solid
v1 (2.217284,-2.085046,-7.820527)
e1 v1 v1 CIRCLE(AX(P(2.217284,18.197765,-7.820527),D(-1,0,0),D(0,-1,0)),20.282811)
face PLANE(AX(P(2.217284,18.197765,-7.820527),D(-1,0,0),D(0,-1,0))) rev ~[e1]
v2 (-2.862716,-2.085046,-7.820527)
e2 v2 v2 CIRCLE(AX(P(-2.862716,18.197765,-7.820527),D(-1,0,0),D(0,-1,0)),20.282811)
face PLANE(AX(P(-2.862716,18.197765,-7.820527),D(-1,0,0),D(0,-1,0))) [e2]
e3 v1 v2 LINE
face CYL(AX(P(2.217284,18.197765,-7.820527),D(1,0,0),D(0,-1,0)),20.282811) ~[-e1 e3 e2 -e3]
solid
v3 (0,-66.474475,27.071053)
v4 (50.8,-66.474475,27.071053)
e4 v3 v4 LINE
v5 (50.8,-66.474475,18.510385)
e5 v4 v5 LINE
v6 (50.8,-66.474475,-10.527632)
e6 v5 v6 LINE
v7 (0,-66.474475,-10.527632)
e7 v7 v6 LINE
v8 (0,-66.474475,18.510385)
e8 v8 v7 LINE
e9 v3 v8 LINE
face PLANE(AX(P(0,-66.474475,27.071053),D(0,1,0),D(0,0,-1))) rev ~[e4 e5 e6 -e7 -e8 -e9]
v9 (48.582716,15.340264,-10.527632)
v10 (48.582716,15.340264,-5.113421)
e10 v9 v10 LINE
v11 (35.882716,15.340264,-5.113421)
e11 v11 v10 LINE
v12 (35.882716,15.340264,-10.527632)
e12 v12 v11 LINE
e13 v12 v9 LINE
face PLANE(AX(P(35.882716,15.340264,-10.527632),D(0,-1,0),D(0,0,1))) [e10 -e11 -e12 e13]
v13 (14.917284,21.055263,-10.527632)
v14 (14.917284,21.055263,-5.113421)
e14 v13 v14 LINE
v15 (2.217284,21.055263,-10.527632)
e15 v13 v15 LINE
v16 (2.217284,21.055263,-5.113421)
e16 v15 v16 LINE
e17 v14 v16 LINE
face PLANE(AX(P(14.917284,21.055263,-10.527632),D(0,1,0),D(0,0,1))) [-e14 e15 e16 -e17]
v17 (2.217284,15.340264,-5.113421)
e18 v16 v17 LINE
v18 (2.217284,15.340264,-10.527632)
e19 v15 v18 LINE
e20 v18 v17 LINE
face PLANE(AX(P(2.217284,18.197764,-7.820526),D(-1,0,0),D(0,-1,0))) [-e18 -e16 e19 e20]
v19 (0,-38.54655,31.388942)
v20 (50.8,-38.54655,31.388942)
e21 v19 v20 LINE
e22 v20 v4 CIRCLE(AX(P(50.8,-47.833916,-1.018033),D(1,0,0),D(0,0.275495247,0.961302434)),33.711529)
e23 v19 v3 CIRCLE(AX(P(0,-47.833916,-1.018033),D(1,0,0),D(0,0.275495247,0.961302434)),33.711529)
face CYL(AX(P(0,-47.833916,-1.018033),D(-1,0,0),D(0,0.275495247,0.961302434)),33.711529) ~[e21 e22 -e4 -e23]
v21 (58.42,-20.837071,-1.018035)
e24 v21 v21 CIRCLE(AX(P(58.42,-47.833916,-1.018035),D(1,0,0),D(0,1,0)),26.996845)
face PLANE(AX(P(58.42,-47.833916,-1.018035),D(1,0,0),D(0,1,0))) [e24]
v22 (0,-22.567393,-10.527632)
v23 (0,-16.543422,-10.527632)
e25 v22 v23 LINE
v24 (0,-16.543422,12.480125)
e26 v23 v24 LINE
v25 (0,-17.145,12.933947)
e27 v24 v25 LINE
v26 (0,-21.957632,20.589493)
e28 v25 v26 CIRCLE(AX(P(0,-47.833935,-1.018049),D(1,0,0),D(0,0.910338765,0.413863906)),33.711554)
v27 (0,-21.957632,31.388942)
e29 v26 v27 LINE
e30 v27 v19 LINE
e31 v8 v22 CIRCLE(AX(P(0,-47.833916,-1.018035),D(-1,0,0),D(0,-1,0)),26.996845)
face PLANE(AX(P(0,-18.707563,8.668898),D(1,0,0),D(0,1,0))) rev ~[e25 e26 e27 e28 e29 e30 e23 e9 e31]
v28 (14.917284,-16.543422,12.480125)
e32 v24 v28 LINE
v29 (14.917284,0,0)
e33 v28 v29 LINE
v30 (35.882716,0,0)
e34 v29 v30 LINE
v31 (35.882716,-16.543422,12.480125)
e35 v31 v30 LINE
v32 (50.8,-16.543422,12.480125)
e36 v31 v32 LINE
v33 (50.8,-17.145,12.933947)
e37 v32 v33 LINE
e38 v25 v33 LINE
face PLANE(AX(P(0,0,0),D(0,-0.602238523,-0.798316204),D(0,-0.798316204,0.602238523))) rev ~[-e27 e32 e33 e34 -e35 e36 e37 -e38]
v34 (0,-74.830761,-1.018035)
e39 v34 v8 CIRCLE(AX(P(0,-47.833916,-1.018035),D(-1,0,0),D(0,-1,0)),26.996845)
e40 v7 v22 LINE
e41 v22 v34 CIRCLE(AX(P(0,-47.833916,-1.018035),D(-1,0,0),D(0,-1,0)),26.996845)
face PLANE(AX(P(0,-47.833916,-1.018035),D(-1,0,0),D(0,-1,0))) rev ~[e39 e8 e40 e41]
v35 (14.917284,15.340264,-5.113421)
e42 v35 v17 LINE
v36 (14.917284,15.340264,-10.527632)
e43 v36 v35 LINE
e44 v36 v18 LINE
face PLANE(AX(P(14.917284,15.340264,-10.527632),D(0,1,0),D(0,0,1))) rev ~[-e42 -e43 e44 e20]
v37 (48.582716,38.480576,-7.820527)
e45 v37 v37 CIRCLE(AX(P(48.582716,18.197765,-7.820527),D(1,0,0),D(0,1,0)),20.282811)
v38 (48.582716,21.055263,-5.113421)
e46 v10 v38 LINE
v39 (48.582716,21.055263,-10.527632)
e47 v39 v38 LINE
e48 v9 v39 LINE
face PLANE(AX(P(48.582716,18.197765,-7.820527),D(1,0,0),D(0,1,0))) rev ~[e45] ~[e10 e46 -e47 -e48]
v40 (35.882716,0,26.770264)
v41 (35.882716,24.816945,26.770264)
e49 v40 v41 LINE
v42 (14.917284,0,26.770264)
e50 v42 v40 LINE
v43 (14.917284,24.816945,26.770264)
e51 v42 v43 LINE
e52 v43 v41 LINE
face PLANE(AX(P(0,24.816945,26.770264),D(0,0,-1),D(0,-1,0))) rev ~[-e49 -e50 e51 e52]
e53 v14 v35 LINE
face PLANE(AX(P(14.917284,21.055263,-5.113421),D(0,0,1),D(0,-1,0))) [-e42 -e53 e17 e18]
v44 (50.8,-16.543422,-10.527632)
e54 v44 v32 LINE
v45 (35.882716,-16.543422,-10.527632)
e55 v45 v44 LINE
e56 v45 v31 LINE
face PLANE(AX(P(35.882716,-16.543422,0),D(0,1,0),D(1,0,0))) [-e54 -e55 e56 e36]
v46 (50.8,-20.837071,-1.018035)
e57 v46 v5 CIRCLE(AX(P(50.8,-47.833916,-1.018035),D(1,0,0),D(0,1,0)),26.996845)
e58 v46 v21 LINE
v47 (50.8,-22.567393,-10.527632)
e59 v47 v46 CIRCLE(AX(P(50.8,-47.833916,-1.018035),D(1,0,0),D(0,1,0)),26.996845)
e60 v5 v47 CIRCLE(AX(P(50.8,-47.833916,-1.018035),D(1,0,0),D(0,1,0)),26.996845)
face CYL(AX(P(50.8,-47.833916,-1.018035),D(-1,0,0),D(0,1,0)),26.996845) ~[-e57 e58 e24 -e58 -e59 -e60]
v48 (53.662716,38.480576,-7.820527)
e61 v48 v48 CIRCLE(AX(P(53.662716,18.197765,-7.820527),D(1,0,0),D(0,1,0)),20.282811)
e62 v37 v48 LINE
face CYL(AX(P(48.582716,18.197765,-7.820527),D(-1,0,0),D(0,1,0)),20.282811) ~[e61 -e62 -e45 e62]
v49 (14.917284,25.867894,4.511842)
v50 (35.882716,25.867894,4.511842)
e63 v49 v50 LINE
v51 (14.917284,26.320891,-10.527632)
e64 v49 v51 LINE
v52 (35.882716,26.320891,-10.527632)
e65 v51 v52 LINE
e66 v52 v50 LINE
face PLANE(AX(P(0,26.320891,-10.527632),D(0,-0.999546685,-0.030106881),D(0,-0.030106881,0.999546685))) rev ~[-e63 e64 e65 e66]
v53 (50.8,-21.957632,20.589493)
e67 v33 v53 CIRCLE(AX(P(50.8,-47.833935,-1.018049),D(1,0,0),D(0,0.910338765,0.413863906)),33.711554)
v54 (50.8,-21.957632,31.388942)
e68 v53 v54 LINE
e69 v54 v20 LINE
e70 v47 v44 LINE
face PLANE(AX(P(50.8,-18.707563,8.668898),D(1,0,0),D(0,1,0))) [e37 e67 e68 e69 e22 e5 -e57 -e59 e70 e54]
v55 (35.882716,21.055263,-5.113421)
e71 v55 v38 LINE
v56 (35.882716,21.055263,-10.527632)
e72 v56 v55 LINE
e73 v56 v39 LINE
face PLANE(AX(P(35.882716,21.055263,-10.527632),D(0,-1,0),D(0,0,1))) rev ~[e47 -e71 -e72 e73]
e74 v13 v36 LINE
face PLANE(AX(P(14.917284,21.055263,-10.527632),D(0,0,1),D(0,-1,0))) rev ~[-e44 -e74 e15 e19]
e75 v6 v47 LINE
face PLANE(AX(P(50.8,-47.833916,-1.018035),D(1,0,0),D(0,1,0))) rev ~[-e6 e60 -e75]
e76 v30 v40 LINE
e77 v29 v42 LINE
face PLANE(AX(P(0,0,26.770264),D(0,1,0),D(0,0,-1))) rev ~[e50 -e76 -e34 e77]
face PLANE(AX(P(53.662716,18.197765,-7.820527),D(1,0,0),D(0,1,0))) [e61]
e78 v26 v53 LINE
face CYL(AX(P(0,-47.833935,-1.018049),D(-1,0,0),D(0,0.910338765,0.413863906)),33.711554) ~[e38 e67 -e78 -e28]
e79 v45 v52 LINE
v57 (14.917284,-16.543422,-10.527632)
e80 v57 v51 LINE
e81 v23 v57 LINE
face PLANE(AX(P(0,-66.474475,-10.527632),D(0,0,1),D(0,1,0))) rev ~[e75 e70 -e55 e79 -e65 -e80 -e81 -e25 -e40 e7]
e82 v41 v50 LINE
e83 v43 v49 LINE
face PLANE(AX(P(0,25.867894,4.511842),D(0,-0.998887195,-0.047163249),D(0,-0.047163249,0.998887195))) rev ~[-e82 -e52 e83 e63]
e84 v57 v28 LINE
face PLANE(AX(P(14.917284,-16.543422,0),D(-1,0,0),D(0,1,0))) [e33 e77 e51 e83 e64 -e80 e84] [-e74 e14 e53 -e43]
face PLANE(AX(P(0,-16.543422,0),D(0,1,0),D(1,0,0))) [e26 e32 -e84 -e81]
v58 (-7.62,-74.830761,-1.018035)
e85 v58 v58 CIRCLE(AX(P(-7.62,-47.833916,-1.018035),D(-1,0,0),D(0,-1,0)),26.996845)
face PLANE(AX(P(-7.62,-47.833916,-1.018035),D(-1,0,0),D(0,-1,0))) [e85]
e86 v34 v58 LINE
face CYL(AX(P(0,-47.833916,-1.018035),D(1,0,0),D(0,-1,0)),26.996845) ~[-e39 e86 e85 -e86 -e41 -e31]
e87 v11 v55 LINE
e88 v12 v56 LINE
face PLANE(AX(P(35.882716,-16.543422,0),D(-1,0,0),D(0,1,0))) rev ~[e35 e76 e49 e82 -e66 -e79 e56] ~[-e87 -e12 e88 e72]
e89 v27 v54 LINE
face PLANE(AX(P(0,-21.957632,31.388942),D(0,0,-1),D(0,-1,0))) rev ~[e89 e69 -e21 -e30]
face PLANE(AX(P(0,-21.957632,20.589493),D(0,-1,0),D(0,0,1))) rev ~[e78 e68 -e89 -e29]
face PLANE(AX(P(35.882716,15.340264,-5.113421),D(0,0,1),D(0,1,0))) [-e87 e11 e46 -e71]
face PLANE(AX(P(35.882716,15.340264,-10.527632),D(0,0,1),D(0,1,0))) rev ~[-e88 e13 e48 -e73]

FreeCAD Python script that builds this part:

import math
import FreeCAD as App
import Part
import Sketcher
Q = App.Units.Quantity

doc = App.newDocument("Part")
body = doc.addObject("PartDesign::Body", "Body")

# Sketch on YZ plane
sketch1 = doc.addObject("Sketcher::SketchObject", "Sketch")
body.addObject(sketch1)
sketch1.AttachmentSupport = (doc.YZ_Plane, [""])
sketch1.MapMode = "FlatFace"
sketch1.addGeometry([
    Part.LineSegment(App.Vector(0, 0, 0), App.Vector(-17.145, 12.933947, 0)),  # 0
    Part.ArcOfCircle(Part.Circle(App.Vector(-47.833935, -1.018049, 0), App.Vector(0, 0, 1), 33.711554), math.radians(24.447792), math.radians(39.862963)),  # 1
    Part.LineSegment(App.Vector(-21.957632, 20.589493, 0), App.Vector(-21.957632, 31.388942, 0)),  # 2
    Part.LineSegment(App.Vector(-21.957632, 31.388942, 0), App.Vector(-38.54655, 31.388942, 0)),  # 3
    Part.ArcOfCircle(Part.Circle(App.Vector(-47.833916, -1.018033, 0), App.Vector(0, 0, 1), 33.711529), math.radians(74.00847), math.radians(123.569161)),  # 4
    Part.LineSegment(App.Vector(-66.474475, 27.071053, 0), App.Vector(-66.474475, -10.527632, 0)),  # 5
    Part.LineSegment(App.Vector(-66.474475, -10.527632, 0), App.Vector(26.320891, -10.527632, 0)),  # 6
    Part.LineSegment(App.Vector(26.320891, -10.527632, 0), App.Vector(25.867894, 4.511842, 0)),  # 7
    Part.LineSegment(App.Vector(25.867894, 4.511842, 0), App.Vector(24.816945, 26.770264, 0)),  # 8
    Part.LineSegment(App.Vector(24.816945, 26.770264, 0), App.Vector(0, 26.770264, 0)),  # 9
    Part.LineSegment(App.Vector(0, 26.770264, 0), App.Vector(0, 0, 0)),  # 10
], False)
sketch1.addConstraint([
    Sketcher.Constraint("Coincident", 0, 2, 1, 1),
    Sketcher.Constraint("Coincident", 1, 2, 2, 1),
    Sketcher.Constraint("Coincident", 2, 2, 3, 1),
    Sketcher.Constraint("Coincident", 3, 2, 4, 1),
    Sketcher.Constraint("Coincident", 4, 2, 5, 1),
    Sketcher.Constraint("Coincident", 5, 2, 6, 1),
    Sketcher.Constraint("Coincident", 6, 2, 7, 1),
    Sketcher.Constraint("Coincident", 7, 2, 8, 1),
    Sketcher.Constraint("Coincident", 8, 2, 9, 1),
    Sketcher.Constraint("Coincident", 9, 2, 10, 1),
    Sketcher.Constraint("Coincident", 10, 2, 0, 1),
    Sketcher.Constraint("Vertical", 2),
    Sketcher.Constraint("Horizontal", 3),
    Sketcher.Constraint("Vertical", 5),
    Sketcher.Constraint("Horizontal", 6),
    Sketcher.Constraint("Horizontal", 9),
    Sketcher.Constraint("Vertical", 10),
    Sketcher.Constraint("Coincident", 10, 2, -1, 1),
    Sketcher.Constraint("DistanceX", 0, 2, -1, 1, Q("0.675 in")),
    Sketcher.Constraint("Radius", 4, Q("33.711529 mm")),
    Sketcher.Constraint("Radius", 1, Q("33.711554 mm")),
    Sketcher.Constraint("DistanceX", 3, 2, 3, 1, Q("16.588918 mm")),
    Sketcher.Constraint("DistanceY", 2, 1, 2, 2, Q("10.799449 mm")),
    Sketcher.Constraint("DistanceY", 1, 3, 4, 2, Q("28.089102 mm")),
    Sketcher.Constraint("DistanceY", 5, 2, 4, 3, Q("9.509599 mm")),
    Sketcher.Constraint("DistanceY", 7, 2, 2, 2, Q("26.8771 mm")),
    Sketcher.Constraint("Distance", 8, Q("22.283219 mm")),
    Sketcher.Constraint("DistanceX", 6, 1, 6, 2, Q("92.795366 mm")),
    Sketcher.Constraint("DistanceX", 9, 2, 9, 1, Q("24.816945 mm")),
    Sketcher.Constraint("DistanceY", 5, 2, 5, 1, Q("37.598685 mm")),
    Sketcher.Constraint("DistanceY", 10, 2, 10, 1, Q("26.770264 mm")),
    Sketcher.Constraint("DistanceY", 1, 3, -1, 1, Q("1.018049 mm")),
    Sketcher.Constraint("DistanceX", 1, 2, -1, 1, Q("21.957632 mm")),
    Sketcher.Constraint("DistanceY", -1, 1, 2, 2, Q("31.388942 mm")),
])
pad1 = doc.addObject("PartDesign::Pad", "Pad")
body.addObject(pad1)
pad1.Profile = sketch1
pad1.Length = Q("2 in")

# Sketch on XY plane
sketch2 = doc.addObject("Sketcher::SketchObject", "Sketch001")
body.addObject(sketch2)
sketch2.AttachmentSupport = (doc.XY_Plane, [""])
sketch2.MapMode = "FlatFace"
sketch2.addGeometry([
    Part.LineSegment(App.Vector(0, 37.297894, 0), App.Vector(0, -16.543422, 0)),  # 0
    Part.LineSegment(App.Vector(0, -16.543422, 0), App.Vector(14.917284, -16.543422, 0)),  # 1
    Part.LineSegment(App.Vector(14.917284, -16.543422, 0), App.Vector(14.917284, 37.297894, 0)),  # 2
    Part.LineSegment(App.Vector(14.917284, 37.297894, 0), App.Vector(0, 37.297894, 0)),  # 3
    Part.LineSegment(App.Vector(35.882716, 37.297894, 0), App.Vector(35.882716, -16.543422, 0)),  # 4
    Part.LineSegment(App.Vector(35.882716, -16.543422, 0), App.Vector(50.8, -16.543422, 0)),  # 5
    Part.LineSegment(App.Vector(50.8, -16.543422, 0), App.Vector(50.8, 37.297894, 0)),  # 6
    Part.LineSegment(App.Vector(50.8, 37.297894, 0), App.Vector(35.882716, 37.297894, 0)),  # 7
], False)
sketch2.addConstraint([
    Sketcher.Constraint("Coincident", 0, 2, 1, 1),
    Sketcher.Constraint("Coincident", 1, 2, 2, 1),
    Sketcher.Constraint("Coincident", 2, 2, 3, 1),
    Sketcher.Constraint("Coincident", 3, 2, 0, 1),
    Sketcher.Constraint("Coincident", 4, 2, 5, 1),
    Sketcher.Constraint("Coincident", 5, 2, 6, 1),
    Sketcher.Constraint("Coincident", 6, 2, 7, 1),
    Sketcher.Constraint("Coincident", 7, 2, 4, 1),
    Sketcher.Constraint("Vertical", 0),
    Sketcher.Constraint("Horizontal", 1),
    Sketcher.Constraint("Vertical", 2),
    Sketcher.Constraint("Horizontal", 3),
    Sketcher.Constraint("Vertical", 4),
    Sketcher.Constraint("Horizontal", 5),
    Sketcher.Constraint("Vertical", 6),
    Sketcher.Constraint("Horizontal", 7),
    Sketcher.Constraint("PointOnObject", 0, 2, -2),
    Sketcher.Constraint("Horizontal", 1, 2, 4, 2),
    Sketcher.Constraint("Horizontal", 3, 2, 6, 2),
    Sketcher.Constraint("Equal", 3, 5),
    Sketcher.Constraint("DistanceX", -1, 1, 5, 2, Q("2 in")),
    Sketcher.Constraint("DistanceX", 1, 1, 1, 2, Q("14.917284 mm")),
    Sketcher.Constraint("DistanceY", 0, 2, 0, 1, Q("53.841317 mm")),
    Sketcher.Constraint("DistanceY", 0, 2, -1, 1, Q("16.543422 mm")),
])
pocket1 = doc.addObject("PartDesign::Pocket", "Pocket")
body.addObject(pocket1)
pocket1.Profile = sketch2
pocket1.Type = "ThroughAll"
pocket1.Reversed = True

# Sketch on XY plane
sketch3 = doc.addObject("Sketcher::SketchObject", "Sketch002")
body.addObject(sketch3)
sketch3.AttachmentSupport = (doc.XY_Plane, [""])
sketch3.MapMode = "FlatFace"
sketch3.addGeometry([
    Part.LineSegment(App.Vector(0, 37.297894, 0), App.Vector(0, -16.543422, 0)),  # 0
    Part.LineSegment(App.Vector(0, -16.543422, 0), App.Vector(14.917284, -16.543422, 0)),  # 1
    Part.LineSegment(App.Vector(14.917284, -16.543422, 0), App.Vector(14.917284, 37.297894, 0)),  # 2
    Part.LineSegment(App.Vector(14.917284, 37.297894, 0), App.Vector(0, 37.297894, 0)),  # 3
    Part.LineSegment(App.Vector(35.882716, 37.297894, 0), App.Vector(35.882716, -16.543422, 0)),  # 4
    Part.LineSegment(App.Vector(35.882716, -16.543422, 0), App.Vector(50.8, -16.543422, 0)),  # 5
    Part.LineSegment(App.Vector(50.8, -16.543422, 0), App.Vector(50.8, 37.297894, 0)),  # 6
    Part.LineSegment(App.Vector(50.8, 37.297894, 0), App.Vector(35.882716, 37.297894, 0)),  # 7
], False)
sketch3.addConstraint([
    Sketcher.Constraint("Coincident", 0, 2, 1, 1),
    Sketcher.Constraint("Coincident", 1, 2, 2, 1),
    Sketcher.Constraint("Coincident", 2, 2, 3, 1),
    Sketcher.Constraint("Coincident", 3, 2, 0, 1),
    Sketcher.Constraint("Coincident", 4, 2, 5, 1),
    Sketcher.Constraint("Coincident", 5, 2, 6, 1),
    Sketcher.Constraint("Coincident", 6, 2, 7, 1),
    Sketcher.Constraint("Coincident", 7, 2, 4, 1),
    Sketcher.Constraint("Vertical", 0),
    Sketcher.Constraint("Horizontal", 1),
    Sketcher.Constraint("Vertical", 2),
    Sketcher.Constraint("Horizontal", 3),
    Sketcher.Constraint("Vertical", 4),
    Sketcher.Constraint("Horizontal", 5),
    Sketcher.Constraint("Vertical", 6),
    Sketcher.Constraint("Horizontal", 7),
    Sketcher.Constraint("PointOnObject", 0, 2, -2),
    Sketcher.Constraint("Horizontal", 1, 2, 4, 2),
    Sketcher.Constraint("Horizontal", 3, 2, 6, 2),
    Sketcher.Constraint("Equal", 3, 5),
    Sketcher.Constraint("DistanceX", -1, 1, 5, 2, Q("2 in")),
    Sketcher.Constraint("DistanceX", 1, 1, 1, 2, Q("14.917284 mm")),
    Sketcher.Constraint("DistanceY", 0, 2, 0, 1, Q("53.841317 mm")),
    Sketcher.Constraint("DistanceY", 0, 2, -1, 1, Q("16.543422 mm")),
])
pocket2 = doc.addObject("PartDesign::Pocket", "Pocket001")
body.addObject(pocket2)
pocket2.Profile = sketch3
pocket2.Type = "ThroughAll"

# Sketch on YZ plane
sketch4 = doc.addObject("Sketcher::SketchObject", "Sketch003")
body.addObject(sketch4)
sketch4.AttachmentSupport = (doc.YZ_Plane, [""])
sketch4.MapMode = "FlatFace"
sketch4.AttachmentOffset = App.Placement(App.Vector(0, 0, 2 * 25.4), App.Rotation())
sketch4.addGeometry(Part.Circle(App.Vector(-47.833916, -1.018035, 0), App.Vector(0, 0, 1), 26.996845), False)
sketch4.addConstraint([
    Sketcher.Constraint("Diameter", 0, Q("53.99369 mm")),
    Sketcher.Constraint("DistanceX", 0, 3, -1, 1, Q("47.833916 mm")),
    Sketcher.Constraint("DistanceY", 0, 3, -1, 1, Q("1.018035 mm")),
])
pad2 = doc.addObject("PartDesign::Pad", "Pad001")
body.addObject(pad2)
pad2.Profile = sketch4
pad2.Length = Q("0.3 in")

# Sketch on YZ plane
sketch5 = doc.addObject("Sketcher::SketchObject", "Sketch004")
body.addObject(sketch5)
sketch5.AttachmentSupport = (doc.YZ_Plane, [""])
sketch5.MapMode = "FlatFace"
sketch5.addGeometry(Part.Circle(App.Vector(-47.833916, -1.018035, 0), App.Vector(0, 0, 1), 26.996845), False)
sketch5.addConstraint([
    Sketcher.Constraint("Diameter", 0, Q("53.99369 mm")),
    Sketcher.Constraint("DistanceX", 0, 3, -1, 1, Q("47.833916 mm")),
    Sketcher.Constraint("DistanceY", 0, 3, -1, 1, Q("1.018035 mm")),
])
pad3 = doc.addObject("PartDesign::Pad", "Pad002")
body.addObject(pad3)
pad3.Profile = sketch5
pad3.Length = Q("0.3 in")
pad3.Reversed = True

# Sketch on YZ plane
sketch6 = doc.addObject("Sketcher::SketchObject", "Sketch005")
body.addObject(sketch6)
sketch6.AttachmentSupport = (doc.YZ_Plane, [""])
sketch6.MapMode = "FlatFace"
sketch6.AttachmentOffset = App.Placement(App.Vector(0, 0, 35.882716), App.Rotation())
sketch6.addGeometry([
    Part.LineSegment(App.Vector(15.340264, -5.113421, 0), App.Vector(15.340264, -10.527632, 0)),
    Part.LineSegment(App.Vector(15.340264, -10.527632, 0), App.Vector(21.055263, -10.527632, 0)),
    Part.LineSegment(App.Vector(21.055263, -10.527632, 0), App.Vector(21.055263, -5.113421, 0)),
    Part.LineSegment(App.Vector(21.055263, -5.113421, 0), App.Vector(15.340264, -5.113421, 0)),
], False)
sketch6.addConstraint([
    Sketcher.Constraint("Coincident", 0, 2, 1, 1),
    Sketcher.Constraint("Coincident", 1, 2, 2, 1),
    Sketcher.Constraint("Coincident", 2, 2, 3, 1),
    Sketcher.Constraint("Coincident", 3, 2, 0, 1),
    Sketcher.Constraint("Vertical", 0),
    Sketcher.Constraint("Horizontal", 1),
    Sketcher.Constraint("Vertical", 2),
    Sketcher.Constraint("Horizontal", 3),
    Sketcher.Constraint("DistanceX", 1, 1, 1, 2, Q("0.225 in")),
    Sketcher.Constraint("DistanceY", 0, 2, 0, 1, Q("5.414211 mm")),
    Sketcher.Constraint("DistanceY", 0, 2, -1, 1, Q("10.527632 mm")),
    Sketcher.Constraint("DistanceX", -1, 1, 0, 2, Q("15.340264 mm")),
])
pad4 = doc.addObject("PartDesign::Pad", "Pad003")
body.addObject(pad4)
pad4.Profile = sketch6
pad4.Length = Q("0.5 in")

# Sketch on YZ plane
sketch7 = doc.addObject("Sketcher::SketchObject", "Sketch006")
body.addObject(sketch7)
sketch7.AttachmentSupport = (doc.YZ_Plane, [""])
sketch7.MapMode = "FlatFace"
sketch7.AttachmentOffset = App.Placement(App.Vector(0, 0, 14.917284), App.Rotation())
sketch7.addGeometry([
    Part.LineSegment(App.Vector(21.055263, -5.113421, 0), App.Vector(21.055263, -10.527632, 0)),
    Part.LineSegment(App.Vector(21.055263, -10.527632, 0), App.Vector(15.340264, -10.527632, 0)),
    Part.LineSegment(App.Vector(15.340264, -10.527632, 0), App.Vector(15.340264, -5.113421, 0)),
    Part.LineSegment(App.Vector(15.340264, -5.113421, 0), App.Vector(21.055263, -5.113421, 0)),
], False)
sketch7.addConstraint([
    Sketcher.Constraint("Coincident", 0, 2, 1, 1),
    Sketcher.Constraint("Coincident", 1, 2, 2, 1),
    Sketcher.Constraint("Coincident", 2, 2, 3, 1),
    Sketcher.Constraint("Coincident", 3, 2, 0, 1),
    Sketcher.Constraint("Vertical", 0),
    Sketcher.Constraint("Horizontal", 1),
    Sketcher.Constraint("Vertical", 2),
    Sketcher.Constraint("Horizontal", 3),
    Sketcher.Constraint("DistanceX", 1, 2, 1, 1, Q("0.225 in")),
    Sketcher.Constraint("DistanceY", 0, 2, 0, 1, Q("5.414211 mm")),
    Sketcher.Constraint("DistanceY", 0, 2, -1, 1, Q("10.527632 mm")),
    Sketcher.Constraint("DistanceX", -1, 1, 0, 2, Q("21.055263 mm")),
])
pad5 = doc.addObject("PartDesign::Pad", "Pad004")
body.addObject(pad5)
pad5.Profile = sketch7
pad5.Length = Q("0.5 in")
pad5.Reversed = True

# Sketch on YZ plane
sketch8 = doc.addObject("Sketcher::SketchObject", "Sketch007")
body.addObject(sketch8)
sketch8.AttachmentSupport = (doc.YZ_Plane, [""])
sketch8.MapMode = "FlatFace"
sketch8.AttachmentOffset = App.Placement(App.Vector(0, 0, 48.582716), App.Rotation())
sketch8.addGeometry(Part.Circle(App.Vector(18.197765, -7.820527, 0), App.Vector(0, 0, 1), 20.282811), False)
sketch8.addConstraint([
    Sketcher.Constraint("Diameter", 0, Q("40.565622 mm")),
    Sketcher.Constraint("DistanceX", -1, 1, 0, 3, Q("18.197765 mm")),
    Sketcher.Constraint("DistanceY", 0, 3, -1, 1, Q("7.820527 mm")),
])
pad6 = doc.addObject("PartDesign::Pad", "Pad005")
body.addObject(pad6)
pad6.Profile = sketch8
pad6.Length = Q("0.2 in")
body2 = doc.addObject("PartDesign::Body", "Body001")

# Sketch on YZ plane
sketch9 = doc.addObject("Sketcher::SketchObject", "Sketch008")
body2.addObject(sketch9)
sketch9.AttachmentSupport = (doc.getObject("YZ_Plane001"), [""])
sketch9.MapMode = "FlatFace"
sketch9.AttachmentOffset = App.Placement(App.Vector(0, 0, 2.217284), App.Rotation())
sketch9.addGeometry(Part.Circle(App.Vector(18.197765, -7.820527, 0), App.Vector(0, 0, 1), 20.282811), False)
sketch9.addConstraint([
    Sketcher.Constraint("Diameter", 0, Q("40.565622 mm")),
    Sketcher.Constraint("DistanceX", -1, 1, 0, 3, Q("18.197765 mm")),
    Sketcher.Constraint("DistanceY", 0, 3, -1, 1, Q("7.820527 mm")),
])
pad7 = doc.addObject("PartDesign::Pad", "Pad006")
body2.addObject(pad7)
pad7.Profile = sketch9
pad7.Length = Q("0.2 in")
pad7.Reversed = True

doc.recompute()
